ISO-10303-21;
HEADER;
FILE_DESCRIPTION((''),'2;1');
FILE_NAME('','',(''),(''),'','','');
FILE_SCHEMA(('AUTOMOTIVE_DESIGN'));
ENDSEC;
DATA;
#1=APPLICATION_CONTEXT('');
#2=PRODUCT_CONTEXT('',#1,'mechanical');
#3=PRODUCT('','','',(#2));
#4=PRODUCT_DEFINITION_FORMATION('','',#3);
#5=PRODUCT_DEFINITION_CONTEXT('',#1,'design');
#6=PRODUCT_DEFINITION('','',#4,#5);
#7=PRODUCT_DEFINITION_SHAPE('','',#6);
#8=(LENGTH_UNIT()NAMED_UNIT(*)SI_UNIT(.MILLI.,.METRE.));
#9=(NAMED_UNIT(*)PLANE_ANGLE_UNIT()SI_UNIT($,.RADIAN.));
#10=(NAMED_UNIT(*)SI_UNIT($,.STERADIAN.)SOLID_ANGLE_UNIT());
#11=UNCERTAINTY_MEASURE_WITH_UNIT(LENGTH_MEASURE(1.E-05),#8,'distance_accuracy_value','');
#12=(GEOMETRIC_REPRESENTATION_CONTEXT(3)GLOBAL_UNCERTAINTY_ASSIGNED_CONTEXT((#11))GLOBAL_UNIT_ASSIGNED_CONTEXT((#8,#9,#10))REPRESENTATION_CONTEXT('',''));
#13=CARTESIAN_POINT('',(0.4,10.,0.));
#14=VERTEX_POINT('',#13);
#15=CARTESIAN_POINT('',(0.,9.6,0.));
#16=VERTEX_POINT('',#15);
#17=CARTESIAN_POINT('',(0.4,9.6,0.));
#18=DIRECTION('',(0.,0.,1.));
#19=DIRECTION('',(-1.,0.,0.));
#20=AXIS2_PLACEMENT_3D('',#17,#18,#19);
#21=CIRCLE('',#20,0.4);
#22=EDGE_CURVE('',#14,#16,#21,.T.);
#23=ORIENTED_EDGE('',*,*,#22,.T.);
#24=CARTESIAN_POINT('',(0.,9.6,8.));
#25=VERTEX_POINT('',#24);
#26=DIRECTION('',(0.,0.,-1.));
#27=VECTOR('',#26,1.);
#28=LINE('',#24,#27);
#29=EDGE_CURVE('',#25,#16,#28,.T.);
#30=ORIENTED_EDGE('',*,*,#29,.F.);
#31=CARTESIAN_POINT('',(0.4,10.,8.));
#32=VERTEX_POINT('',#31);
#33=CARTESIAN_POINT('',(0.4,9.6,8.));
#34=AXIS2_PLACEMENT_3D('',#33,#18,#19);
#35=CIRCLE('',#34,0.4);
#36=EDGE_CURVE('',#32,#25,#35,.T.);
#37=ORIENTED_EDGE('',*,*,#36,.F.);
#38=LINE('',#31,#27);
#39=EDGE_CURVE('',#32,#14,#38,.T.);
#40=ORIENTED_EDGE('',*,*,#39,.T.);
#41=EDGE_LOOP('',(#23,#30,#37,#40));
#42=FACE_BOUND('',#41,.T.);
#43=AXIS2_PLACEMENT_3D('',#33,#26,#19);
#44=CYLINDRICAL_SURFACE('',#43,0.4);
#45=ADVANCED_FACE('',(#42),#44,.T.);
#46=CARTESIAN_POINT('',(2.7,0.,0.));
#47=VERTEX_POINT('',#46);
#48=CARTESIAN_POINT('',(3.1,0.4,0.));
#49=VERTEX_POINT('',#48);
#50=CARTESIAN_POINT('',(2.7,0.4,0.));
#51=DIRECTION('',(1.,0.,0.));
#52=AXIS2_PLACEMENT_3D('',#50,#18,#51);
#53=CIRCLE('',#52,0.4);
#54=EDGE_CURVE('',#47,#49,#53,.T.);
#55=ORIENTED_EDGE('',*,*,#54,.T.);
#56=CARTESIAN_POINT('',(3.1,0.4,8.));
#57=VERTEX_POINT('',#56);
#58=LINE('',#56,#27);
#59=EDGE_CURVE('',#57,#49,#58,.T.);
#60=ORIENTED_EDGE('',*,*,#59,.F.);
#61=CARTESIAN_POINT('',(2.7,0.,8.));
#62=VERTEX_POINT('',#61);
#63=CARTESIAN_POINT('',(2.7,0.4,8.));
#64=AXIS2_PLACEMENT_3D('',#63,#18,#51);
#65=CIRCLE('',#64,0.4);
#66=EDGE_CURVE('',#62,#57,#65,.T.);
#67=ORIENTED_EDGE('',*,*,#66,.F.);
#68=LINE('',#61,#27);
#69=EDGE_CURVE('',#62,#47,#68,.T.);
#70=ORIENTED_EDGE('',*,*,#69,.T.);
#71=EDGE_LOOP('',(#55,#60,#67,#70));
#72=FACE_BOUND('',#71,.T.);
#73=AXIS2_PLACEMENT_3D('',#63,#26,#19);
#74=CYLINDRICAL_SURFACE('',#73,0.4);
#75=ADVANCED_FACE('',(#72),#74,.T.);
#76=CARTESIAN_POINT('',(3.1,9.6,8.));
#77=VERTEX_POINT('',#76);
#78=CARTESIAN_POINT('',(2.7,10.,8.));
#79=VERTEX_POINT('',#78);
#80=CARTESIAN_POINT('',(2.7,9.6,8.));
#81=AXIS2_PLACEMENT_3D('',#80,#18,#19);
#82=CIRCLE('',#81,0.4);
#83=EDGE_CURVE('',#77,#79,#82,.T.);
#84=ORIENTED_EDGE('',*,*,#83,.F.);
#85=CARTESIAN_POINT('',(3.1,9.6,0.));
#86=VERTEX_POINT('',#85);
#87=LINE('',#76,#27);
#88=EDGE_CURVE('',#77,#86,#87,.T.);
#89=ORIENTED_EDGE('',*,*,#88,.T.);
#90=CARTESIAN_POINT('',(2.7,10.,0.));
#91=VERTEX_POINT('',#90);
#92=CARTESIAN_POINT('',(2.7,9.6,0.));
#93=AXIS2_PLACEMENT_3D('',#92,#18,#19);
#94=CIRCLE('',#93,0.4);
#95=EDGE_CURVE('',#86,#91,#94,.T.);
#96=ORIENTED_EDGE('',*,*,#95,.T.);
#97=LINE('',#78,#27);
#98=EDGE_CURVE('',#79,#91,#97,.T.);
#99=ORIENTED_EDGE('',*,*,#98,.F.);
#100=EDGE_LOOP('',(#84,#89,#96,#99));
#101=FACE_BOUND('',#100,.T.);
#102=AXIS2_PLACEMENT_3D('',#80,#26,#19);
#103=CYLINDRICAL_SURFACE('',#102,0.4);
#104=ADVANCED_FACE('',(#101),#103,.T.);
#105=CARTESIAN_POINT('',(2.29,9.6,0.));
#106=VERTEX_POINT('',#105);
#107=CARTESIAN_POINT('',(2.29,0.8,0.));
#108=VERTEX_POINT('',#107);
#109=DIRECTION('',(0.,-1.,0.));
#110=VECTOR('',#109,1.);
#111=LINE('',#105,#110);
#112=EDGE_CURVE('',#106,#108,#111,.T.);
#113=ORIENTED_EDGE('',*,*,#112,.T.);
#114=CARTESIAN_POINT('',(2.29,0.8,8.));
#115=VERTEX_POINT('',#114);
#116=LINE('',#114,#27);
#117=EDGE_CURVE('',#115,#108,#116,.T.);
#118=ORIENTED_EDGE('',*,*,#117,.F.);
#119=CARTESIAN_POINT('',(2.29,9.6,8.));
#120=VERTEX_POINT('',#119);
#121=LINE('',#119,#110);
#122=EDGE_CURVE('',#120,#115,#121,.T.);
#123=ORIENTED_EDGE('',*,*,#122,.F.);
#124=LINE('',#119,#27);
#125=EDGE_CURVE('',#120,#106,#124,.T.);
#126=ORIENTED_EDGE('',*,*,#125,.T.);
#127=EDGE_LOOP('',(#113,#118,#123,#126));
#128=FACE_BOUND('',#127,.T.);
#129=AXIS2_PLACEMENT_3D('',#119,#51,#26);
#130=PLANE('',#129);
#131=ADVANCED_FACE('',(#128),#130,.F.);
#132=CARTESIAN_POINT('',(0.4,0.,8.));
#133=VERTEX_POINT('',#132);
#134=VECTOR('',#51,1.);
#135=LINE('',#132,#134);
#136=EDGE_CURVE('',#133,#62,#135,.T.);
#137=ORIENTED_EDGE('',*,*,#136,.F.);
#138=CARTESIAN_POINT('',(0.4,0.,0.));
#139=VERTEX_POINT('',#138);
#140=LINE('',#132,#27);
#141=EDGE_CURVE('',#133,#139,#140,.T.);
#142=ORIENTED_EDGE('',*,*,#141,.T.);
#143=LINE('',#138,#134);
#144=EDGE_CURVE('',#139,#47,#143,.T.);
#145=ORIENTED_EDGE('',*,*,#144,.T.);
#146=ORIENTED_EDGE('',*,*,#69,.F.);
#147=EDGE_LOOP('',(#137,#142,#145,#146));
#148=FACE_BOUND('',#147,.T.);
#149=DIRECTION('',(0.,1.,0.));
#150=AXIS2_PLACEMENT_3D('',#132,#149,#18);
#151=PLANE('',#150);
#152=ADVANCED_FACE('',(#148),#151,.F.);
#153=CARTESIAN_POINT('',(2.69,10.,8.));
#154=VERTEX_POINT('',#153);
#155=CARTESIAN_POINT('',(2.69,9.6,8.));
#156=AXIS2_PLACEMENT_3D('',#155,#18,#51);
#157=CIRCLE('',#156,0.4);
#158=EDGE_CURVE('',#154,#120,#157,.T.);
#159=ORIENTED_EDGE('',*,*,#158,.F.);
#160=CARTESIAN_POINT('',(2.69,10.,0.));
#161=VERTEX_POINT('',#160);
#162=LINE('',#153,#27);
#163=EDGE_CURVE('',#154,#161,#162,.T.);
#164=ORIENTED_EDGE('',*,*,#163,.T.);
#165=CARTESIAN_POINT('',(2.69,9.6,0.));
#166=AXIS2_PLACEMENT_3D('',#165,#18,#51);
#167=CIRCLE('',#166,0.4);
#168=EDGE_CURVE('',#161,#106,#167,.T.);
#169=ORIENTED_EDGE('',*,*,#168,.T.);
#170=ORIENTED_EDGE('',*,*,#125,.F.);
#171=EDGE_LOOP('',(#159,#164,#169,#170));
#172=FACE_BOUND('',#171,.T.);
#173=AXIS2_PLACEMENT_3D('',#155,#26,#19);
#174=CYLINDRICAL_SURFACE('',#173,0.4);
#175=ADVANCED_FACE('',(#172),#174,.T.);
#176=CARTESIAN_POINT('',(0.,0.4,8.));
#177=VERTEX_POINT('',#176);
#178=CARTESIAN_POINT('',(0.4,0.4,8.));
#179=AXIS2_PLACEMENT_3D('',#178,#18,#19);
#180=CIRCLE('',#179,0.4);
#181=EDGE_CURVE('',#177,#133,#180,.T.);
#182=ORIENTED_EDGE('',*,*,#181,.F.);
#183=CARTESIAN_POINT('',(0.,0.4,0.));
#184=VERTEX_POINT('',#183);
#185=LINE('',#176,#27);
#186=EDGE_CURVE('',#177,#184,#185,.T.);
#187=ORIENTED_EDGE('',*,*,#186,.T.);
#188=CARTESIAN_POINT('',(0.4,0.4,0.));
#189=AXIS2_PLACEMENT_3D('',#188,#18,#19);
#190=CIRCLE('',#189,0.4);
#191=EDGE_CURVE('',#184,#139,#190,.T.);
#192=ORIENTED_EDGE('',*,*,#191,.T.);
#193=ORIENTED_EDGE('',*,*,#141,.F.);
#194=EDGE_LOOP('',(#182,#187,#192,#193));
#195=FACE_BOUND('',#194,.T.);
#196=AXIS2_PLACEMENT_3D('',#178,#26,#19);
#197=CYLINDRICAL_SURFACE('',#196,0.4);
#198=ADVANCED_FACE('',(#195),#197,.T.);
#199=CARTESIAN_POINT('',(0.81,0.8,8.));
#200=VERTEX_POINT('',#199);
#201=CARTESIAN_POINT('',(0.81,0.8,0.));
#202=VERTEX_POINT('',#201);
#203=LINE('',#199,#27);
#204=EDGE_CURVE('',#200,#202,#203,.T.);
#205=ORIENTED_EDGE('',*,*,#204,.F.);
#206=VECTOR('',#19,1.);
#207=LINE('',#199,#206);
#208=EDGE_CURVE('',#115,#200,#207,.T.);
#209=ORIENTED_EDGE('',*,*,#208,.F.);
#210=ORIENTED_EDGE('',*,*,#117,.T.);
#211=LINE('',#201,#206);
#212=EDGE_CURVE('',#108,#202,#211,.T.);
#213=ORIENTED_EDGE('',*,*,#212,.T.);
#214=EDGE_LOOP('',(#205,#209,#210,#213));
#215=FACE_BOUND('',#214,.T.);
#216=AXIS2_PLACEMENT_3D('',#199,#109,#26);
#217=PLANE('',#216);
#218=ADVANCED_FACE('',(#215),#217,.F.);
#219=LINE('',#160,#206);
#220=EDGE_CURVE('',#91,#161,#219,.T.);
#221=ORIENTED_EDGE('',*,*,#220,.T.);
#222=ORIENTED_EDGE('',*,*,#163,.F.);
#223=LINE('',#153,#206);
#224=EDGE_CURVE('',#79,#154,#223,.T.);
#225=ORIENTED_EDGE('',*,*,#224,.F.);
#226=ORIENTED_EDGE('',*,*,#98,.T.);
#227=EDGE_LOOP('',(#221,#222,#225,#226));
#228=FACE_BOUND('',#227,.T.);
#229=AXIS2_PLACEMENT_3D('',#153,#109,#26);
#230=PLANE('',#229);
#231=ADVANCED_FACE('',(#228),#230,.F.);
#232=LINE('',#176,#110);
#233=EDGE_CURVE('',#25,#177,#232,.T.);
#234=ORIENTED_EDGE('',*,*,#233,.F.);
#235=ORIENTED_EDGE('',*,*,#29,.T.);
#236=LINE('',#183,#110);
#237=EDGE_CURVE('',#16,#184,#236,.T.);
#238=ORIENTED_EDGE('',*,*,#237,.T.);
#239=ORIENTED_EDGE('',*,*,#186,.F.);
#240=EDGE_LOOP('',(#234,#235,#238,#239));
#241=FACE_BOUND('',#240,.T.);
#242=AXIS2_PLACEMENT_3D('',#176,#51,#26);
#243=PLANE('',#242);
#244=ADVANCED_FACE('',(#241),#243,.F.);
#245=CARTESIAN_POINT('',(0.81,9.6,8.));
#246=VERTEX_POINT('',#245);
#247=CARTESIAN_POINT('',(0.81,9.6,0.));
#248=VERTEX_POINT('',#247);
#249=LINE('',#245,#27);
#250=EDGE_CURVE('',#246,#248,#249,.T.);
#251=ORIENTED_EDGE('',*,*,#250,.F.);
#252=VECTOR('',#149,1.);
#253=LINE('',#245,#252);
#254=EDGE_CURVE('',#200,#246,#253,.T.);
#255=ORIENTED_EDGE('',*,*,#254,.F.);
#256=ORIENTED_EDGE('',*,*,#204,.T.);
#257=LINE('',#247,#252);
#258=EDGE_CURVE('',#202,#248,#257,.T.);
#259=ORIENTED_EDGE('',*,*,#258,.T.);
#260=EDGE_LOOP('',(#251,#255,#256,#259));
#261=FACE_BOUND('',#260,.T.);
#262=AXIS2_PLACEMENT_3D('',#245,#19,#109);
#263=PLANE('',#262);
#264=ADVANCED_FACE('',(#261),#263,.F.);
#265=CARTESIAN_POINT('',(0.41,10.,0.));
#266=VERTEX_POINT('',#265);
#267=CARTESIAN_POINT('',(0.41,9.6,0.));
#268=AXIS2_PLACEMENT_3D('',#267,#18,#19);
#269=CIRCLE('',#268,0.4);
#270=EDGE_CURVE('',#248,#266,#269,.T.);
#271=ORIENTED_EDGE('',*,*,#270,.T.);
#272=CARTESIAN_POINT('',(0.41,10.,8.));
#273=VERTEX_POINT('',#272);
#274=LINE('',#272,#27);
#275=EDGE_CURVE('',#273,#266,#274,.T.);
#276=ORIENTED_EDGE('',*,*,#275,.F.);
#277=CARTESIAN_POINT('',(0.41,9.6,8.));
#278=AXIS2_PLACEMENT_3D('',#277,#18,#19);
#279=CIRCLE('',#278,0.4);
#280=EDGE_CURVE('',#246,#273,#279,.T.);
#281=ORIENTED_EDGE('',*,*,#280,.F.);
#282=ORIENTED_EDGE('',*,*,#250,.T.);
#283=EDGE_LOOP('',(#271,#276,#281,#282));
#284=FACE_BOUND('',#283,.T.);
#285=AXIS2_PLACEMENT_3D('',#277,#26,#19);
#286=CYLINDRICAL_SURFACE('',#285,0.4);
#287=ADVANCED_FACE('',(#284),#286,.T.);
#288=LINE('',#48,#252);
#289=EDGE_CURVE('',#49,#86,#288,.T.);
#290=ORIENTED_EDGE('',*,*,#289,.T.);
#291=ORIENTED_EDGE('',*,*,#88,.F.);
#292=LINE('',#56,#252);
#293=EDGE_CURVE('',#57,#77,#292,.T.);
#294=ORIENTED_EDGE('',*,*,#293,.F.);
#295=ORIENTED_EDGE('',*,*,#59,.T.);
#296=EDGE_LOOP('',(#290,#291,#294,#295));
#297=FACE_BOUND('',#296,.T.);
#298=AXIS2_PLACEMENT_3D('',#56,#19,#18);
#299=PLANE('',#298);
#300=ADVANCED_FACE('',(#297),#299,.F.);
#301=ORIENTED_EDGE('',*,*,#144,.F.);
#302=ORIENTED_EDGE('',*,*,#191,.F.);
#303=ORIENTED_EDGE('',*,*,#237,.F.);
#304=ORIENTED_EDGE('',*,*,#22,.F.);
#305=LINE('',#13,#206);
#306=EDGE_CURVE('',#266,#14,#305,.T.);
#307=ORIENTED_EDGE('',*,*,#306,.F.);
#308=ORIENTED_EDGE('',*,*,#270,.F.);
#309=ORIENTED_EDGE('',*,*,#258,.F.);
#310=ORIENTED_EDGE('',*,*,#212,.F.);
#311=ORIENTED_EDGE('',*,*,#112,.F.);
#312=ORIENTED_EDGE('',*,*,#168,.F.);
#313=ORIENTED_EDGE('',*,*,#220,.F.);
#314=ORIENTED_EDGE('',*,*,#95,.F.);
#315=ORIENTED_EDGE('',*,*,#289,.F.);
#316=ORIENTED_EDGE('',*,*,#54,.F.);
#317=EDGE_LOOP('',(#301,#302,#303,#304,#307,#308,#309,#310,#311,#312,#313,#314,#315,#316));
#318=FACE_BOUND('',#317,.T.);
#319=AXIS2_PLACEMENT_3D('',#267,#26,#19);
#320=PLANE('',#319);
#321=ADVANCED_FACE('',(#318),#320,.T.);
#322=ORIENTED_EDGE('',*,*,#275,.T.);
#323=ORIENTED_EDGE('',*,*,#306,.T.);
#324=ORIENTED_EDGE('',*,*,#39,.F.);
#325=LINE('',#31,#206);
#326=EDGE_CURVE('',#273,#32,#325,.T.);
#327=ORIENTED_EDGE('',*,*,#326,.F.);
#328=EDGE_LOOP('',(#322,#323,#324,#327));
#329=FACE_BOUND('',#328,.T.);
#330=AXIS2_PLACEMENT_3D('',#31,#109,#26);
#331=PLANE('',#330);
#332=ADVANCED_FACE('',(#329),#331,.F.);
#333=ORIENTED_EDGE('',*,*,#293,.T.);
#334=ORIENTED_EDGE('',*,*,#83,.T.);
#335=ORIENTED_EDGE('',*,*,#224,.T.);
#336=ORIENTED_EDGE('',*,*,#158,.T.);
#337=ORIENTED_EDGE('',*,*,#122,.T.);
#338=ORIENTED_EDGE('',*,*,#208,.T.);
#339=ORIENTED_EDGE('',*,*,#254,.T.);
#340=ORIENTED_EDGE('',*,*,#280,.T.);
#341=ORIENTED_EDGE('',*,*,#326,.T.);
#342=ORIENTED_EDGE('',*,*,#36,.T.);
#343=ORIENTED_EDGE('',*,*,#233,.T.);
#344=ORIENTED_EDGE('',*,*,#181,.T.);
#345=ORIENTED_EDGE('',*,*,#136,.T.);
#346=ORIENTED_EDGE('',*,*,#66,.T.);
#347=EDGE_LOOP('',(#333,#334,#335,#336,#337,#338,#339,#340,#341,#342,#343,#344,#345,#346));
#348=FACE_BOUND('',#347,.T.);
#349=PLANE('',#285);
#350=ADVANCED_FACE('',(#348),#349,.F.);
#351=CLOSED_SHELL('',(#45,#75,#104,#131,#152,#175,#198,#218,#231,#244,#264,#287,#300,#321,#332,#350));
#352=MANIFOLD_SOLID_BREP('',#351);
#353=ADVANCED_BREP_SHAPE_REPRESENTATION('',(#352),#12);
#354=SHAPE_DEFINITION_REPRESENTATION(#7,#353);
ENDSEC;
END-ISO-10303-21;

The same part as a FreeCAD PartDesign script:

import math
import FreeCAD as App
import Part
import Sketcher
from FreeCAD import Vector
Q = App.Units.Quantity

doc = App.newDocument("Part")
body = doc.addObject("PartDesign::Body", "Body")

# Sketch on XY plane
sketch1 = body.newObject("Sketcher::SketchObject", "Sketch")
sketch1.AttachmentSupport = (doc.getObject("XY_Plane"), [""])
sketch1.MapMode = "FlatFace"
sketch1.addGeometry([
    Part.LineSegment(Vector(2.7, 10, 0), Vector(2.69, 10, 0)),  # 0
    Part.ArcOfCircle(Part.Circle(Vector(2.69, 9.6, 0), Vector(0, 0, 1), 0.4), math.radians(90), math.radians(180)),  # 1
    Part.LineSegment(Vector(2.29, 9.6, 0), Vector(2.29, 0.8, 0)),  # 2
    Part.LineSegment(Vector(2.29, 0.8, 0), Vector(0.81, 0.8, 0)),  # 3
    Part.LineSegment(Vector(0.81, 0.8, 0), Vector(0.81, 9.6, 0)),  # 4
    Part.ArcOfCircle(Part.Circle(Vector(0.41, 9.6, 0), Vector(0, 0, 1), 0.4), math.radians(0), math.radians(90)),  # 5
    Part.LineSegment(Vector(0.41, 10, 0), Vector(0.4, 10, 0)),  # 6
    Part.ArcOfCircle(Part.Circle(Vector(0.4, 9.6, 0), Vector(0, 0, 1), 0.4), math.radians(90), math.radians(180)),  # 7
    Part.LineSegment(Vector(0, 9.6, 0), Vector(0, 0.4, 0)),  # 8
    Part.ArcOfCircle(Part.Circle(Vector(0.4, 0.4, 0), Vector(0, 0, 1), 0.4), math.radians(-180), math.radians(-90)),  # 9
    Part.LineSegment(Vector(0.4, 0, 0), Vector(2.7, 0, 0)),  # 10
    Part.ArcOfCircle(Part.Circle(Vector(2.7, 0.4, 0), Vector(0, 0, 1), 0.4), math.radians(-90), math.radians(0)),  # 11
    Part.LineSegment(Vector(3.1, 0.4, 0), Vector(3.1, 9.6, 0)),  # 12
    Part.ArcOfCircle(Part.Circle(Vector(2.7, 9.6, 0), Vector(0, 0, 1), 0.4), math.radians(0), math.radians(90)),  # 13
], False)
sketch1.addConstraint([
    Sketcher.Constraint("Tangent", 0, 2, 1, 1),
    Sketcher.Constraint("Tangent", 1, 2, 2, 1),
    Sketcher.Constraint("Coincident", 2, 2, 3, 1),
    Sketcher.Constraint("Coincident", 3, 2, 4, 1),
    Sketcher.Constraint("Tangent", 4, 2, 5, 1),
    Sketcher.Constraint("Tangent", 5, 2, 6, 1),
    Sketcher.Constraint("Tangent", 6, 2, 7, 1),
    Sketcher.Constraint("Tangent", 7, 2, 8, 1),
    Sketcher.Constraint("Tangent", 8, 2, 9, 1),
    Sketcher.Constraint("Tangent", 9, 2, 10, 1),
    Sketcher.Constraint("Tangent", 10, 2, 11, 1),
    Sketcher.Constraint("Tangent", 11, 2, 12, 1),
    Sketcher.Constraint("Tangent", 12, 2, 13, 1),
    Sketcher.Constraint("Tangent", 13, 2, 0, 1),
    Sketcher.Constraint("Horizontal", 0),
    Sketcher.Constraint("Vertical", 2),
    Sketcher.Constraint("Horizontal", 3),
    Sketcher.Constraint("Vertical", 4),
    Sketcher.Constraint("Horizontal", 6),
    Sketcher.Constraint("Vertical", 8),
    Sketcher.Constraint("Horizontal", 10),
    Sketcher.Constraint("Vertical", 12),
    Sketcher.Constraint("Equal", 1, 5),
    Sketcher.Constraint("Equal", 5, 7),
    Sketcher.Constraint("Equal", 7, 9),
    Sketcher.Constraint("Equal", 9, 11),
    Sketcher.Constraint("Equal", 11, 13),
    Sketcher.Constraint("PointOnObject", 7, 2, -2),
    Sketcher.Constraint("PointOnObject", 9, 2, -1),
    Sketcher.Constraint("Horizontal", 1, 3, 5, 3),
    Sketcher.Constraint("Equal", 0, 6),
    Sketcher.Constraint("Radius", 1, Q("0.4 mm")),
    Sketcher.Constraint("DistanceX", 10, 1, 10, 2, Q("2.3 mm")),
    Sketcher.Constraint("DistanceY", 2, 2, 2, 1, Q("8.8 mm")),
    Sketcher.Constraint("DistanceY", 8, 2, 8, 1, Q("9.2 mm")),
    Sketcher.Constraint("DistanceX", 0, 2, 0, 1, Q("0.01 mm")),
])
pad1 = body.newObject("PartDesign::Pad", "Pad")
pad1.Profile = sketch1
pad1.Length = 8

doc.recompute()
